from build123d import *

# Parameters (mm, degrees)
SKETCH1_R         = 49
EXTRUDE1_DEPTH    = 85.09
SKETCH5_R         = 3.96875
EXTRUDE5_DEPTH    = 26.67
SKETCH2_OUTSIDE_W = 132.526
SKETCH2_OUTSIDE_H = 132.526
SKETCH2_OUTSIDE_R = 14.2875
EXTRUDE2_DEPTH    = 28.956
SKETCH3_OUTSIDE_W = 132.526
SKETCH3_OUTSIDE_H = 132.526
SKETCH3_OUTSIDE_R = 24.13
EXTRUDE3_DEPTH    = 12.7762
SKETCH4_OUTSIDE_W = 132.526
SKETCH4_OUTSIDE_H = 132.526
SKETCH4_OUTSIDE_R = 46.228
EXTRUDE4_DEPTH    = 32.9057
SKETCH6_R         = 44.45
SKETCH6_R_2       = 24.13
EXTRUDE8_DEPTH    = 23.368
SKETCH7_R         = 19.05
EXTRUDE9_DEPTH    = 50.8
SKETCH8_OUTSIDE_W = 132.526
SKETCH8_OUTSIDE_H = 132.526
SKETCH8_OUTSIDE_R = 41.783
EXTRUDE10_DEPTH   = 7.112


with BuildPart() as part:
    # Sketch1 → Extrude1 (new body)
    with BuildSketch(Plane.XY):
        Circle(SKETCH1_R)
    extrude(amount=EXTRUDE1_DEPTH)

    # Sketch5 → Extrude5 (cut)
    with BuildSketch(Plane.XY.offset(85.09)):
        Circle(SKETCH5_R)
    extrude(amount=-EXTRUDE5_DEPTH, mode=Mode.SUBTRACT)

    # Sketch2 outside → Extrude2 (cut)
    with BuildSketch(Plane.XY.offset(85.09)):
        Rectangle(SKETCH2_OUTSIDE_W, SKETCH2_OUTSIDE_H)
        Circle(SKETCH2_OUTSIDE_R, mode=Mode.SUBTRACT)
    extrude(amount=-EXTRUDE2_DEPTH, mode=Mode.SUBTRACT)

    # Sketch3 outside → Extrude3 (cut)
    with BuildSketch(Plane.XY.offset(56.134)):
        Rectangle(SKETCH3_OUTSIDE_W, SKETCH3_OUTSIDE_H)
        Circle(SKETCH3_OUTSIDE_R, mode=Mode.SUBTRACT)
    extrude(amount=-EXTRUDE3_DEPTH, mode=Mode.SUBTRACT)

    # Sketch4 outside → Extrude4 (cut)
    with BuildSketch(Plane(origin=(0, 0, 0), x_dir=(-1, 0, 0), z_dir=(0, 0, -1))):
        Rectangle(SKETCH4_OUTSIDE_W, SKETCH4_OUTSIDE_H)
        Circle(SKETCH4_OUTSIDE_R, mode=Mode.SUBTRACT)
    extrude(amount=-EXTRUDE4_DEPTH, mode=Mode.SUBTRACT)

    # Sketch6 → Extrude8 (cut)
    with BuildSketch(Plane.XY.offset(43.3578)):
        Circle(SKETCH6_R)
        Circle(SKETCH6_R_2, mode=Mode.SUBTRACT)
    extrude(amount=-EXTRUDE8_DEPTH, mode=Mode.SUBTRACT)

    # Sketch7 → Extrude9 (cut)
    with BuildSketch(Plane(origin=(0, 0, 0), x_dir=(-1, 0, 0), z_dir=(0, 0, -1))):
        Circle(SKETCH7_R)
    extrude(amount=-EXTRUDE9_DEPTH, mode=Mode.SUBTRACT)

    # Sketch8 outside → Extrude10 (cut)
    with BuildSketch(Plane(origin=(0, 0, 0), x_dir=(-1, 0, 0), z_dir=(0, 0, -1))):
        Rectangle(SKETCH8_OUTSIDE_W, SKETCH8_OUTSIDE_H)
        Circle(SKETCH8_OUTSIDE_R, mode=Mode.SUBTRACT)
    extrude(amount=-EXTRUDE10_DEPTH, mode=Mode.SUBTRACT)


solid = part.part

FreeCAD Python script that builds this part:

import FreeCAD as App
import Part
import Sketcher

V = App.Vector
Q = App.Units.Quantity

doc = App.newDocument("Part")
body = doc.addObject("PartDesign::Body", "Body")

# Sketch on XY plane
sketch1 = body.newObject("Sketcher::SketchObject", "Sketch")
sketch1.AttachmentSupport = (doc.getObject("XY_Plane"), [""])
sketch1.MapMode = "FlatFace"
sketch1.addGeometry(Part.Circle(V(0, 0, 0), V(0, 0, 1), 49), False)
sketch1.addConstraint(Sketcher.Constraint("Coincident", 0, 3, -1, 1))
sketch1.addConstraint(Sketcher.Constraint("Diameter", 0, Q("98 mm")))
pad1 = body.newObject("PartDesign::Pad", "Pad")
pad1.Profile = sketch1
pad1.Length = Q("3.35 in")

# Sketch on XY plane
sketch2 = body.newObject("Sketcher::SketchObject", "Sketch001")
sketch2.AttachmentSupport = (doc.getObject("XY_Plane"), [""])
sketch2.MapMode = "FlatFace"
sketch2.AttachmentOffset = App.Placement(V(0, 0, 3.35 * 25.4), App.Rotation())
sketch2.addGeometry(Part.Circle(V(0, 0, 0), V(0, 0, 1), 4), False)
sketch2.addConstraint(Sketcher.Constraint("Coincident", 0, 3, -1, 1))
sketch2.addConstraint(Sketcher.Constraint("Diameter", 0, Q("0.3125 in")))
pocket1 = body.newObject("PartDesign::Pocket", "Pocket")
pocket1.Profile = sketch2
pocket1.Length = Q("1.05 in")

# Sketch on XY plane
sketch3 = body.newObject("Sketcher::SketchObject", "Sketch002")
sketch3.AttachmentSupport = (doc.getObject("XY_Plane"), [""])
sketch3.MapMode = "FlatFace"
sketch3.AttachmentOffset = App.Placement(V(0, 0, 3.35 * 25.4), App.Rotation())
sketch3.addGeometry(Part.LineSegment(V(-66, 66, 0), V(-66, -66, 0)), False)
sketch3.addGeometry(Part.LineSegment(V(-66, -66, 0), V(66, -66, 0)), False)
sketch3.addGeometry(Part.LineSegment(V(66, -66, 0), V(66, 66, 0)), False)
sketch3.addGeometry(Part.LineSegment(V(66, 66, 0), V(-66, 66, 0)), False)
sketch3.addGeometry(Part.Circle(V(0, 0, 0), V(0, 0, 1), 14), False)
sketch3.addConstraint(Sketcher.Constraint("Coincident", 0, 2, 1, 1))
sketch3.addConstraint(Sketcher.Constraint("Coincident", 1, 2, 2, 1))
sketch3.addConstraint(Sketcher.Constraint("Coincident", 2, 2, 3, 1))
sketch3.addConstraint(Sketcher.Constraint("Coincident", 3, 2, 0, 1))
sketch3.addConstraint(Sketcher.Constraint("Vertical", 0))
sketch3.addConstraint(Sketcher.Constraint("Horizontal", 1))
sketch3.addConstraint(Sketcher.Constraint("Vertical", 2))
sketch3.addConstraint(Sketcher.Constraint("Horizontal", 3))
sketch3.addConstraint(Sketcher.Constraint("Coincident", 4, 3, -1, 1))
sketch3.addConstraint(Sketcher.Constraint("Symmetric", 0, 2, 2, 2, -1, 1))
sketch3.addConstraint(Sketcher.Constraint("Equal", 3, 0))
sketch3.addConstraint(Sketcher.Constraint("Diameter", 4, Q("1.125 in")))
sketch3.addConstraint(Sketcher.Constraint("DistanceX", 1, 1, 1, 2, Q("132.526 mm")))
pocket2 = body.newObject("PartDesign::Pocket", "Pocket001")
pocket2.Profile = sketch3
pocket2.Length = Q("1.14 in")

# Sketch on XY plane
sketch4 = body.newObject("Sketcher::SketchObject", "Sketch003")
sketch4.AttachmentSupport = (doc.getObject("XY_Plane"), [""])
sketch4.MapMode = "FlatFace"
sketch4.AttachmentOffset = App.Placement(V(0, 0, 2.21 * 25.4), App.Rotation())
sketch4.addGeometry(Part.LineSegment(V(-66, 66, 0), V(-66, -66, 0)), False)
sketch4.addGeometry(Part.LineSegment(V(-66, -66, 0), V(66, -66, 0)), False)
sketch4.addGeometry(Part.LineSegment(V(66, -66, 0), V(66, 66, 0)), False)
sketch4.addGeometry(Part.LineSegment(V(66, 66, 0), V(-66, 66, 0)), False)
sketch4.addGeometry(Part.Circle(V(0, 0, 0), V(0, 0, 1), 24), False)
sketch4.addConstraint(Sketcher.Constraint("Coincident", 0, 2, 1, 1))
sketch4.addConstraint(Sketcher.Constraint("Coincident", 1, 2, 2, 1))
sketch4.addConstraint(Sketcher.Constraint("Coincident", 2, 2, 3, 1))
sketch4.addConstraint(Sketcher.Constraint("Coincident", 3, 2, 0, 1))
sketch4.addConstraint(Sketcher.Constraint("Vertical", 0))
sketch4.addConstraint(Sketcher.Constraint("Horizontal", 1))
sketch4.addConstraint(Sketcher.Constraint("Vertical", 2))
sketch4.addConstraint(Sketcher.Constraint("Horizontal", 3))
sketch4.addConstraint(Sketcher.Constraint("Coincident", 4, 3, -1, 1))
sketch4.addConstraint(Sketcher.Constraint("Symmetric", 0, 2, 2, 2, -1, 1))
sketch4.addConstraint(Sketcher.Constraint("Equal", 3, 0))
sketch4.addConstraint(Sketcher.Constraint("Diameter", 4, Q("1.9 in")))
sketch4.addConstraint(Sketcher.Constraint("DistanceX", 1, 1, 1, 2, Q("132.526 mm")))
pocket3 = body.newObject("PartDesign::Pocket", "Pocket002")
pocket3.Profile = sketch4
pocket3.Length = Q("0.503 in")

# Sketch on XY plane
sketch5 = body.newObject("Sketcher::SketchObject", "Sketch004")
sketch5.AttachmentSupport = (doc.getObject("XY_Plane"), [""])
sketch5.MapMode = "FlatFace"
sketch5.addGeometry(Part.LineSegment(V(66, 66, 0), V(66, -66, 0)), False)
sketch5.addGeometry(Part.LineSegment(V(66, -66, 0), V(-66, -66, 0)), False)
sketch5.addGeometry(Part.LineSegment(V(-66, -66, 0), V(-66, 66, 0)), False)
sketch5.addGeometry(Part.LineSegment(V(-66, 66, 0), V(66, 66, 0)), False)
sketch5.addGeometry(Part.Circle(V(0, 0, 0), V(0, 0, 1), 46), False)
sketch5.addConstraint(Sketcher.Constraint("Coincident", 0, 2, 1, 1))
sketch5.addConstraint(Sketcher.Constraint("Coincident", 1, 2, 2, 1))
sketch5.addConstraint(Sketcher.Constraint("Coincident", 2, 2, 3, 1))
sketch5.addConstraint(Sketcher.Constraint("Coincident", 3, 2, 0, 1))
sketch5.addConstraint(Sketcher.Constraint("Vertical", 0))
sketch5.addConstraint(Sketcher.Constraint("Horizontal", 1))
sketch5.addConstraint(Sketcher.Constraint("Vertical", 2))
sketch5.addConstraint(Sketcher.Constraint("Horizontal", 3))
sketch5.addConstraint(Sketcher.Constraint("Coincident", 4, 3, -1, 1))
sketch5.addConstraint(Sketcher.Constraint("Symmetric", 0, 2, 2, 2, -1, 1))
sketch5.addConstraint(Sketcher.Constraint("Equal", 3, 0))
sketch5.addConstraint(Sketcher.Constraint("Diameter", 4, Q("3.64 in")))
sketch5.addConstraint(Sketcher.Constraint("DistanceX", 1, 2, 1, 1, Q("132.526 mm")))
pocket4 = body.newObject("PartDesign::Pocket", "Pocket003")
pocket4.Profile = sketch5
pocket4.Length = Q("1.2955 in")
pocket4.Reversed = True

# Sketch on XY plane
sketch6 = body.newObject("Sketcher::SketchObject", "Sketch005")
sketch6.AttachmentSupport = (doc.getObject("XY_Plane"), [""])
sketch6.MapMode = "FlatFace"
sketch6.AttachmentOffset = App.Placement(V(0, 0, 1.707 * 25.4), App.Rotation())
sketch6.addGeometry(Part.Circle(V(0, 0, 0), V(0, 0, 1), 44), False)
sketch6.addGeometry(Part.Circle(V(0, 0, 0), V(0, 0, 1), 24), False)
sketch6.addConstraint(Sketcher.Constraint("Coincident", 0, 3, -1, 1))
sketch6.addConstraint(Sketcher.Constraint("Coincident", 1, 3, -1, 1))
sketch6.addConstraint(Sketcher.Constraint("Diameter", 0, Q("3.5 in")))
sketch6.addConstraint(Sketcher.Constraint("Diameter", 1, Q("1.9 in")))
pocket5 = body.newObject("PartDesign::Pocket", "Pocket004")
pocket5.Profile = sketch6
pocket5.Length = Q("0.92 in")

# Sketch on XY plane
sketch7 = body.newObject("Sketcher::SketchObject", "Sketch006")
sketch7.AttachmentSupport = (doc.getObject("XY_Plane"), [""])
sketch7.MapMode = "FlatFace"
sketch7.addGeometry(Part.Circle(V(0, 0, 0), V(0, 0, 1), 19), False)
sketch7.addConstraint(Sketcher.Constraint("Coincident", 0, 3, -1, 1))
sketch7.addConstraint(Sketcher.Constraint("Diameter", 0, Q("1.5 in")))
pocket6 = body.newObject("PartDesign::Pocket", "Pocket005")
pocket6.Profile = sketch7
pocket6.Length = Q("2 in")
pocket6.Reversed = True

# Sketch on XY plane
sketch8 = body.newObject("Sketcher::SketchObject", "Sketch007")
sketch8.AttachmentSupport = (doc.getObject("XY_Plane"), [""])
sketch8.MapMode = "FlatFace"
sketch8.addGeometry(Part.LineSegment(V(66, 66, 0), V(66, -66, 0)), False)
sketch8.addGeometry(Part.LineSegment(V(66, -66, 0), V(-66, -66, 0)), False)
sketch8.addGeometry(Part.LineSegment(V(-66, -66, 0), V(-66, 66, 0)), False)
sketch8.addGeometry(Part.LineSegment(V(-66, 66, 0), V(66, 66, 0)), False)
sketch8.addGeometry(Part.Circle(V(0, 0, 0), V(0, 0, 1), 42), False)
sketch8.addConstraint(Sketcher.Constraint("Coincident", 0, 2, 1, 1))
sketch8.addConstraint(Sketcher.Constraint("Coincident", 1, 2, 2, 1))
sketch8.addConstraint(Sketcher.Constraint("Coincident", 2, 2, 3, 1))
sketch8.addConstraint(Sketcher.Constraint("Coincident", 3, 2, 0, 1))
sketch8.addConstraint(Sketcher.Constraint("Vertical", 0))
sketch8.addConstraint(Sketcher.Constraint("Horizontal", 1))
sketch8.addConstraint(Sketcher.Constraint("Vertical", 2))
sketch8.addConstraint(Sketcher.Constraint("Horizontal", 3))
sketch8.addConstraint(Sketcher.Constraint("Coincident", 4, 3, -1, 1))
sketch8.addConstraint(Sketcher.Constraint("Symmetric", 0, 2, 2, 2, -1, 1))
sketch8.addConstraint(Sketcher.Constraint("Equal", 3, 0))
sketch8.addConstraint(Sketcher.Constraint("Diameter", 4, Q("3.29 in")))
sketch8.addConstraint(Sketcher.Constraint("DistanceX", 1, 2, 1, 1, Q("132.526 mm")))
pocket7 = body.newObject("PartDesign::Pocket", "Pocket006")
pocket7.Profile = sketch8
pocket7.Length = Q("0.28 in")
pocket7.Reversed = True

doc.recompute()
